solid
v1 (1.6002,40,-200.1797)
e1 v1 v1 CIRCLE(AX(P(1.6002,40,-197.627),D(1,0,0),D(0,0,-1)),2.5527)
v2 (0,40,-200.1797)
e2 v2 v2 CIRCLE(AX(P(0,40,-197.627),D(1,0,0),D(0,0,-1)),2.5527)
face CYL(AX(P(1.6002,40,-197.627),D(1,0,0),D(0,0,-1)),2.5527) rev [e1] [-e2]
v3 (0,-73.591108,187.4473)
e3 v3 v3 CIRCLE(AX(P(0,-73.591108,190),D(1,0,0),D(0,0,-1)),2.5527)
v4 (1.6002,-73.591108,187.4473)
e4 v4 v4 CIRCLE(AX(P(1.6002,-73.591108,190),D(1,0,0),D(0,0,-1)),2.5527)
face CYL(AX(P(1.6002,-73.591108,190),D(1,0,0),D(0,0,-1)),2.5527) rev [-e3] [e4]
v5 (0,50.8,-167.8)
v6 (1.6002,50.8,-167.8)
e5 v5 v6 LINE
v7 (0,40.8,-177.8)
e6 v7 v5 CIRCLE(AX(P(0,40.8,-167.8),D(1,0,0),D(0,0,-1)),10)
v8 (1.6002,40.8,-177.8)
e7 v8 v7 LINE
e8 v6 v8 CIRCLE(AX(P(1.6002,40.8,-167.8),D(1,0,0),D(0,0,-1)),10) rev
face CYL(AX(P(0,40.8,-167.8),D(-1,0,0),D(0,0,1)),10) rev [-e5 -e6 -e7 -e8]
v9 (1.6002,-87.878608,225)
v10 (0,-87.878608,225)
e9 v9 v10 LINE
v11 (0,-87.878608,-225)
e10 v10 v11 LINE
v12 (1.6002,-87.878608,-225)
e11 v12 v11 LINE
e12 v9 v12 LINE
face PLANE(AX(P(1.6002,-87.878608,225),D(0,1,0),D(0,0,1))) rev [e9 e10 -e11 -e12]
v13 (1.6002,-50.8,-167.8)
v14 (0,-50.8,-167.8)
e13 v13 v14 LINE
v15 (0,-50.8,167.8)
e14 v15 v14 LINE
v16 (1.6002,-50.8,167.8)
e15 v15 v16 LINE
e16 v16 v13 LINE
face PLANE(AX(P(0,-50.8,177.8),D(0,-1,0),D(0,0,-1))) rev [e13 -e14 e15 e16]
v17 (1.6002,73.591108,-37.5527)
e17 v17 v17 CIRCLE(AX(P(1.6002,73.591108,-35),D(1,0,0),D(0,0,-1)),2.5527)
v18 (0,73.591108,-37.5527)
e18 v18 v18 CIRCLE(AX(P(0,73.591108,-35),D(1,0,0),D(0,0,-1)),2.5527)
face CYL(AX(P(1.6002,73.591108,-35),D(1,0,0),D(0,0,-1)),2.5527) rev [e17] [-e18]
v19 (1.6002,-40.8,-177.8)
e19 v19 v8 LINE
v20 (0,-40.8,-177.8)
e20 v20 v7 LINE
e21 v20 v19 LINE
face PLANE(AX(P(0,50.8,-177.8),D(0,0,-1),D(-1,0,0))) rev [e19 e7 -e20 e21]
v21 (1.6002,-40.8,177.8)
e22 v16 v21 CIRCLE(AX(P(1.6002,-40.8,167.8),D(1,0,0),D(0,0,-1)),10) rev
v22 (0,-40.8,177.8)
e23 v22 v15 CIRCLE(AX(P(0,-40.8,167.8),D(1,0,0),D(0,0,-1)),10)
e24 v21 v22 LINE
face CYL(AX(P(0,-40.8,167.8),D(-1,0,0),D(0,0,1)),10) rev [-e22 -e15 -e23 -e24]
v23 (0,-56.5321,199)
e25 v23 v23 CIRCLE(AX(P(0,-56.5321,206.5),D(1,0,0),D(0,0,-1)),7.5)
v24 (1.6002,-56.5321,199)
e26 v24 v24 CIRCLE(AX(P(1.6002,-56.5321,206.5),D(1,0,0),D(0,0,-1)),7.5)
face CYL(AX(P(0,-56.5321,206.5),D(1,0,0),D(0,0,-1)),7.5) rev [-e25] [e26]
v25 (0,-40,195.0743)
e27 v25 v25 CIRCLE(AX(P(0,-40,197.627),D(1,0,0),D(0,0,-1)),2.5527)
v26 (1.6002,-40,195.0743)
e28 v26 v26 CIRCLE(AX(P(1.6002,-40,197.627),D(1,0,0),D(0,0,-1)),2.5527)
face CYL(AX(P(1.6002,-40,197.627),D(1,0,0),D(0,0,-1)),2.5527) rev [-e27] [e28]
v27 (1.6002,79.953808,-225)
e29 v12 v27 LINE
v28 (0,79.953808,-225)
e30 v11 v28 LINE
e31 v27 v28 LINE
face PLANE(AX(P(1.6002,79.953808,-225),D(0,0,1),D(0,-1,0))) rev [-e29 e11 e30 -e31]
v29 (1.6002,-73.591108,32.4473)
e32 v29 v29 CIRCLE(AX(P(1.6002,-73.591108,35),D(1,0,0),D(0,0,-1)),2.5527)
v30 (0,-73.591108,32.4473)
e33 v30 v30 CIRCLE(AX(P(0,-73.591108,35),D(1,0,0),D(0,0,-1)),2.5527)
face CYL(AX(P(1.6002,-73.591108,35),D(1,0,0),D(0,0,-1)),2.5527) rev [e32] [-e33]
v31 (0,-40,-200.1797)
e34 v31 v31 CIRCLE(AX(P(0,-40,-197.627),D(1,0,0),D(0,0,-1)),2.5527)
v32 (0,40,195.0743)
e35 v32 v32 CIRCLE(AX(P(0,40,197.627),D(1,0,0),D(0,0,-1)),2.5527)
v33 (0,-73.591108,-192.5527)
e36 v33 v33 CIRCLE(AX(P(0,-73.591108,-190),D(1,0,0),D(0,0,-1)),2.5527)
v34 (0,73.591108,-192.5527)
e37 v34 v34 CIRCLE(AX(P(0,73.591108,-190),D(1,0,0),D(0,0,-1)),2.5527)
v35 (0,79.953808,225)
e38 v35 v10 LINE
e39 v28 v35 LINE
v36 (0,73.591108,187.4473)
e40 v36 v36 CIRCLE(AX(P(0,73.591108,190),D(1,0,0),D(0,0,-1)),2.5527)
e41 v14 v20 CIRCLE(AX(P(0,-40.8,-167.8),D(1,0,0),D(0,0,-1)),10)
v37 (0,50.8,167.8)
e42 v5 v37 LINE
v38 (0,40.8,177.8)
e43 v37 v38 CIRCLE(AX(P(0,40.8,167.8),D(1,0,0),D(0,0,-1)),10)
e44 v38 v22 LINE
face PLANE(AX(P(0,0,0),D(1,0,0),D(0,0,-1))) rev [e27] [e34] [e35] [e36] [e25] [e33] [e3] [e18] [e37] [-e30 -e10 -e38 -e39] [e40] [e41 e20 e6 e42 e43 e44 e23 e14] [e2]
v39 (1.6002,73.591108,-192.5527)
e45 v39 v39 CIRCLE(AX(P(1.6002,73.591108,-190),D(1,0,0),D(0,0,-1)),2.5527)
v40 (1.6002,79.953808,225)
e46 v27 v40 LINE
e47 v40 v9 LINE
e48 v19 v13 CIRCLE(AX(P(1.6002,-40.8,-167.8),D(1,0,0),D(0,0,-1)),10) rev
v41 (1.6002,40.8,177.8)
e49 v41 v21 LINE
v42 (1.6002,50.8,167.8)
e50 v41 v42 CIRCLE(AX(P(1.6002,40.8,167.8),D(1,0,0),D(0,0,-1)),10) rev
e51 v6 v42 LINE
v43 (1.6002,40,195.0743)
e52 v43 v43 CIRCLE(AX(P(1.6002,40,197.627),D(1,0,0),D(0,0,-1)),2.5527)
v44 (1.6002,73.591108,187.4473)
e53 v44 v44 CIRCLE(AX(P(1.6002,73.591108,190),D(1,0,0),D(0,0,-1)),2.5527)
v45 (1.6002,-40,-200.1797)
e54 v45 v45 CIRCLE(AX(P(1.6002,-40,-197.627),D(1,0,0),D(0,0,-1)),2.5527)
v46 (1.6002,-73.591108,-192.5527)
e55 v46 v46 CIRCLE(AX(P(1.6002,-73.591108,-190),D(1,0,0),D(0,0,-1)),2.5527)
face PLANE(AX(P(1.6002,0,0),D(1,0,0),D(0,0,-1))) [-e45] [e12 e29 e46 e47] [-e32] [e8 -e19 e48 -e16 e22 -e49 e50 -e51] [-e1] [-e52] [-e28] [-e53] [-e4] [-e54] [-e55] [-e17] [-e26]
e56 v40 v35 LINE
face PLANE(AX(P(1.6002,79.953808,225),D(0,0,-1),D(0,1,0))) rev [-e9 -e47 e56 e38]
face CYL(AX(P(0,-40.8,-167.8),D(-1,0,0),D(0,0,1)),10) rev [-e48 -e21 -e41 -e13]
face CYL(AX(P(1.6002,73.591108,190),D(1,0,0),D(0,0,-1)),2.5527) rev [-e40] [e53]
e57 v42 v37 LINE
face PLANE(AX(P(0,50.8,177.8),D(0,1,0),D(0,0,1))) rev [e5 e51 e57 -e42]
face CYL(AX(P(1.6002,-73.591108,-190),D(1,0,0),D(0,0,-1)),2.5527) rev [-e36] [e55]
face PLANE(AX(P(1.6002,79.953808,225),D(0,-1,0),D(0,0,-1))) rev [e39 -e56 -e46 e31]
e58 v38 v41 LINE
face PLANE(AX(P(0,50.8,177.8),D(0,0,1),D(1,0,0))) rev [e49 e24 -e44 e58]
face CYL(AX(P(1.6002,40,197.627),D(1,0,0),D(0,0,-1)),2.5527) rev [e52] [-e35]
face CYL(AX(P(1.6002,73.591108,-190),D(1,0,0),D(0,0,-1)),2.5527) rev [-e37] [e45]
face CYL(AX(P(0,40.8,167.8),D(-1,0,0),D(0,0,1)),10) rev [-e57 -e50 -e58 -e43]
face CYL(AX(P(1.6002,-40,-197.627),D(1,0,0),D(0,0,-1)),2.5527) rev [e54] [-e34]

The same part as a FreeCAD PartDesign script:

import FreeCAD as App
import Part
import Sketcher
from FreeCAD import Vector
Q = App.Units.Quantity


def edges_at(feature, points):
    """Names of the edges that pass closest to the given points."""
    edges = feature.Shape.Edges
    near = lambda p: min(range(len(edges)), key=lambda i: edges[i].distToShape(Part.Vertex(*p))[0])
    return sorted({f"Edge{near(p) + 1}" for p in points})

doc = App.newDocument("Part")
body = doc.addObject("PartDesign::Body", "Body")

# Sketch on YZ plane
sketch1 = body.newObject("Sketcher::SketchObject", "Sketch")
sketch1.AttachmentSupport = (doc.getObject("YZ_Plane"), [""])
sketch1.MapMode = "FlatFace"
sketch1.addGeometry(Part.LineSegment(Vector(79.953808, 225, 0), Vector(-87.878608, 225, 0)), False)
sketch1.addGeometry(Part.LineSegment(Vector(-87.878608, 225, 0), Vector(-87.878608, -225, 0)), False)
sketch1.addGeometry(Part.LineSegment(Vector(-87.878608, -225, 0), Vector(79.953808, -225, 0)), False)
sketch1.addGeometry(Part.LineSegment(Vector(79.953808, -225, 0), Vector(79.953808, 225, 0)), False)
sketch1.addConstraint(Sketcher.Constraint("Coincident", 0, 2, 1, 1))
sketch1.addConstraint(Sketcher.Constraint("Coincident", 1, 2, 2, 1))
sketch1.addConstraint(Sketcher.Constraint("Coincident", 2, 2, 3, 1))
sketch1.addConstraint(Sketcher.Constraint("Coincident", 3, 2, 0, 1))
sketch1.addConstraint(Sketcher.Constraint("Horizontal", 0))
sketch1.addConstraint(Sketcher.Constraint("Vertical", 1))
sketch1.addConstraint(Sketcher.Constraint("Horizontal", 2))
sketch1.addConstraint(Sketcher.Constraint("Vertical", 3))
sketch1.addConstraint(Sketcher.Constraint("DistanceY", 1, 2, 1, 1, 450.0))
sketch1.addConstraint(Sketcher.Constraint("DistanceY", -1, 1, 0, 2, 225.0))
sketch1.addConstraint(Sketcher.Constraint("DistanceX", 0, 2, 0, 1, 167.832417))
sketch1.addConstraint(Sketcher.Constraint("DistanceX", 0, 2, -1, 1, 87.878608))
pad1 = body.newObject("PartDesign::Pad", "Pad")
pad1.Profile = sketch1
pad1.Length = Q("0.063 in")

# Sketch on YZ plane
sketch2 = body.newObject("Sketcher::SketchObject", "Sketch001")
sketch2.AttachmentSupport = (doc.getObject("YZ_Plane"), [""])
sketch2.MapMode = "FlatFace"
sketch2.AttachmentOffset = App.Placement(Vector(0, 0, 0.063 * 25.4), App.Rotation())
sketch2.addGeometry(Part.Circle(Vector(73.591108, 190, 0), Vector(0, 0, 1), 2.5527), False)
sketch2.addGeometry(Part.Circle(Vector(73.591108, -35, 0), Vector(0, 0, 1), 2.5527), False)
sketch2.addGeometry(Part.Circle(Vector(-73.591108, 35, 0), Vector(0, 0, 1), 2.5527), False)
sketch2.addGeometry(Part.Circle(Vector(-73.591108, 190, 0), Vector(0, 0, 1), 2.5527), False)
sketch2.addGeometry(Part.Circle(Vector(73.591108, -190, 0), Vector(0, 0, 1), 2.5527), False)
sketch2.addGeometry(Part.Circle(Vector(-73.591108, -190, 0), Vector(0, 0, 1), 2.5527), False)
sketch2.addConstraint(Sketcher.Constraint("Equal", 0, 1))
sketch2.addConstraint(Sketcher.Constraint("Equal", 1, 2))
sketch2.addConstraint(Sketcher.Constraint("Equal", 2, 3))
sketch2.addConstraint(Sketcher.Constraint("Equal", 3, 4))
sketch2.addConstraint(Sketcher.Constraint("Equal", 4, 5))
sketch2.addConstraint(Sketcher.Constraint("Symmetric", 1, 3, 2, 3, -1, 1))
sketch2.addConstraint(Sketcher.Constraint("Symmetric", 3, 3, 4, 3, -1, 1))
sketch2.addConstraint(Sketcher.Constraint("Symmetric", 0, 3, 5, 3, -1, 1))
sketch2.addConstraint(Sketcher.Constraint("Symmetric", 0, 3, 3, 3, -2))
sketch2.addConstraint(Sketcher.Constraint("Vertical", 0, 3, 1, 3))
sketch2.addConstraint(Sketcher.Constraint("Diameter", 0, Q("0.201 in")))
sketch2.addConstraint(Sketcher.Constraint("DistanceY", -1, 1, 0, 3, 190.0))
sketch2.addConstraint(Sketcher.Constraint("DistanceY", 1, 3, -1, 1, 35.0))
sketch2.addConstraint(Sketcher.Constraint("DistanceX", -1, 1, 0, 3, 73.591108))
doc.recompute()
hole = body.newObject("PartDesign::Hole", "Hole")
hole.Profile = sketch2
hole.ThreadType = "None"
hole.Diameter = Q("0.201 in")
hole.DepthType = "Dimension"
hole.Depth = 129.53
hole.DrillPoint = "Angled"
hole.DrillPointAngle = 118

# Sketch on YZ plane
sketch3 = body.newObject("Sketcher::SketchObject", "Sketch002")
sketch3.AttachmentSupport = (doc.getObject("YZ_Plane"), [""])
sketch3.MapMode = "FlatFace"
sketch3.AttachmentOffset = App.Placement(Vector(0, 0, 0.063 * 25.4), App.Rotation())
sketch3.addGeometry(Part.Circle(Vector(-56.5321, 206.5, 0), Vector(0, 0, 1), 7.5), False)
sketch3.addConstraint(Sketcher.Constraint("Diameter", 0, 15.0))
sketch3.addConstraint(Sketcher.Constraint("DistanceX", 0, 3, -1, 1, 56.5321))
sketch3.addConstraint(Sketcher.Constraint("DistanceY", -1, 1, 0, 3, 206.5))
pocket1 = body.newObject("PartDesign::Pocket", "Pocket")
pocket1.Profile = sketch3
pocket1.Type = "ThroughAll"

# Sketch on YZ plane
sketch4 = body.newObject("Sketcher::SketchObject", "Sketch003")
sketch4.AttachmentSupport = (doc.getObject("YZ_Plane"), [""])
sketch4.MapMode = "FlatFace"
sketch4.AttachmentOffset = App.Placement(Vector(0, 0, 0.063 * 25.4), App.Rotation())
sketch4.addGeometry(Part.LineSegment(Vector(50.8, 177.8, 0), Vector(-50.8, 177.8, 0)), False)
sketch4.addGeometry(Part.LineSegment(Vector(-50.8, 177.8, 0), Vector(-50.8, -177.8, 0)), False)
sketch4.addGeometry(Part.LineSegment(Vector(-50.8, -177.8, 0), Vector(50.8, -177.8, 0)), False)
sketch4.addGeometry(Part.LineSegment(Vector(50.8, -177.8, 0), Vector(50.8, 177.8, 0)), False)
sketch4.addConstraint(Sketcher.Constraint("Coincident", 0, 2, 1, 1))
sketch4.addConstraint(Sketcher.Constraint("Coincident", 1, 2, 2, 1))
sketch4.addConstraint(Sketcher.Constraint("Coincident", 2, 2, 3, 1))
sketch4.addConstraint(Sketcher.Constraint("Coincident", 3, 2, 0, 1))
sketch4.addConstraint(Sketcher.Constraint("Horizontal", 0))
sketch4.addConstraint(Sketcher.Constraint("Vertical", 1))
sketch4.addConstraint(Sketcher.Constraint("Horizontal", 2))
sketch4.addConstraint(Sketcher.Constraint("Vertical", 3))
sketch4.addConstraint(Sketcher.Constraint("Symmetric", 0, 2, 2, 2, -1, 1))
sketch4.addConstraint(Sketcher.Constraint("DistanceX", 0, 2, 0, 1, Q("4 in")))
sketch4.addConstraint(Sketcher.Constraint("DistanceY", 1, 2, 1, 1, Q("14 in")))
pocket2 = body.newObject("PartDesign::Pocket", "Pocket001")
pocket2.Profile = sketch4
pocket2.Type = "ThroughAll"
doc.recompute()

fillet = body.newObject("PartDesign::Fillet", "Fillet")
fillet.Base = (pocket2, edges_at(pocket2, [
    (0.8, -50.8, 177.8),
    (0.8, 50.8, 177.8),
    (0.8, 50.8, -177.8),
    (0.8, -50.8, -177.8),
]))
fillet.Radius = 10

# Sketch on YZ plane
sketch5 = body.newObject("Sketcher::SketchObject", "Sketch004")
sketch5.AttachmentSupport = (doc.getObject("YZ_Plane"), [""])
sketch5.MapMode = "FlatFace"
sketch5.AttachmentOffset = App.Placement(Vector(0, 0, 0.063 * 25.4), App.Rotation())
sketch5.addGeometry(Part.Circle(Vector(40, -197.627, 0), Vector(0, 0, 1), 2.5527), False)
sketch5.addConstraint(Sketcher.Constraint("Diameter", 0, Q("0.201 in")))
sketch5.addConstraint(Sketcher.Constraint("DistanceX", -1, 1, 0, 3, 40.0))
sketch5.addConstraint(Sketcher.Constraint("DistanceY", 0, 3, -1, 1, 197.627))
doc.recompute()
hole2 = body.newObject("PartDesign::Hole", "Hole001")
hole2.Profile = sketch5
hole2.ThreadType = "None"
hole2.Diameter = Q("0.201 in")
hole2.DepthType = "ThroughAll"
doc.recompute()

mirrored = body.newObject("PartDesign::Mirrored", "Mirrored")
mirrored.Originals = [hole2]
mirrored.MirrorPlane = (doc.getObject("XZ_Plane"), [""])
body.Tip = mirrored
doc.recompute()

mirrored2 = body.newObject("PartDesign::Mirrored", "Mirrored001")
mirrored2.Originals = [hole2]
mirrored2.MirrorPlane = (doc.getObject("XY_Plane"), [""])
body.Tip = mirrored2

# Sketch on YZ plane
sketch6 = body.newObject("Sketcher::SketchObject", "Sketch005")
sketch6.AttachmentSupport = (doc.getObject("YZ_Plane"), [""])
sketch6.MapMode = "FlatFace"
sketch6.AttachmentOffset = App.Placement(Vector(0, 0, 0.063 * 25.4), App.Rotation())
sketch6.addGeometry(Part.Circle(Vector(-40, 197.627, 0), Vector(0, 0, 1), 2.5527), False)
sketch6.addConstraint(Sketcher.Constraint("Diameter", 0, Q("0.201 in")))
sketch6.addConstraint(Sketcher.Constraint("DistanceX", 0, 3, -1, 1, 40.0))
sketch6.addConstraint(Sketcher.Constraint("DistanceY", -1, 1, 0, 3, 197.627))
doc.recompute()
hole3 = body.newObject("PartDesign::Hole", "Hole002")
hole3.Profile = sketch6
hole3.ThreadType = "None"
hole3.Diameter = Q("0.201 in")
hole3.DepthType = "ThroughAll"

doc.recompute()
